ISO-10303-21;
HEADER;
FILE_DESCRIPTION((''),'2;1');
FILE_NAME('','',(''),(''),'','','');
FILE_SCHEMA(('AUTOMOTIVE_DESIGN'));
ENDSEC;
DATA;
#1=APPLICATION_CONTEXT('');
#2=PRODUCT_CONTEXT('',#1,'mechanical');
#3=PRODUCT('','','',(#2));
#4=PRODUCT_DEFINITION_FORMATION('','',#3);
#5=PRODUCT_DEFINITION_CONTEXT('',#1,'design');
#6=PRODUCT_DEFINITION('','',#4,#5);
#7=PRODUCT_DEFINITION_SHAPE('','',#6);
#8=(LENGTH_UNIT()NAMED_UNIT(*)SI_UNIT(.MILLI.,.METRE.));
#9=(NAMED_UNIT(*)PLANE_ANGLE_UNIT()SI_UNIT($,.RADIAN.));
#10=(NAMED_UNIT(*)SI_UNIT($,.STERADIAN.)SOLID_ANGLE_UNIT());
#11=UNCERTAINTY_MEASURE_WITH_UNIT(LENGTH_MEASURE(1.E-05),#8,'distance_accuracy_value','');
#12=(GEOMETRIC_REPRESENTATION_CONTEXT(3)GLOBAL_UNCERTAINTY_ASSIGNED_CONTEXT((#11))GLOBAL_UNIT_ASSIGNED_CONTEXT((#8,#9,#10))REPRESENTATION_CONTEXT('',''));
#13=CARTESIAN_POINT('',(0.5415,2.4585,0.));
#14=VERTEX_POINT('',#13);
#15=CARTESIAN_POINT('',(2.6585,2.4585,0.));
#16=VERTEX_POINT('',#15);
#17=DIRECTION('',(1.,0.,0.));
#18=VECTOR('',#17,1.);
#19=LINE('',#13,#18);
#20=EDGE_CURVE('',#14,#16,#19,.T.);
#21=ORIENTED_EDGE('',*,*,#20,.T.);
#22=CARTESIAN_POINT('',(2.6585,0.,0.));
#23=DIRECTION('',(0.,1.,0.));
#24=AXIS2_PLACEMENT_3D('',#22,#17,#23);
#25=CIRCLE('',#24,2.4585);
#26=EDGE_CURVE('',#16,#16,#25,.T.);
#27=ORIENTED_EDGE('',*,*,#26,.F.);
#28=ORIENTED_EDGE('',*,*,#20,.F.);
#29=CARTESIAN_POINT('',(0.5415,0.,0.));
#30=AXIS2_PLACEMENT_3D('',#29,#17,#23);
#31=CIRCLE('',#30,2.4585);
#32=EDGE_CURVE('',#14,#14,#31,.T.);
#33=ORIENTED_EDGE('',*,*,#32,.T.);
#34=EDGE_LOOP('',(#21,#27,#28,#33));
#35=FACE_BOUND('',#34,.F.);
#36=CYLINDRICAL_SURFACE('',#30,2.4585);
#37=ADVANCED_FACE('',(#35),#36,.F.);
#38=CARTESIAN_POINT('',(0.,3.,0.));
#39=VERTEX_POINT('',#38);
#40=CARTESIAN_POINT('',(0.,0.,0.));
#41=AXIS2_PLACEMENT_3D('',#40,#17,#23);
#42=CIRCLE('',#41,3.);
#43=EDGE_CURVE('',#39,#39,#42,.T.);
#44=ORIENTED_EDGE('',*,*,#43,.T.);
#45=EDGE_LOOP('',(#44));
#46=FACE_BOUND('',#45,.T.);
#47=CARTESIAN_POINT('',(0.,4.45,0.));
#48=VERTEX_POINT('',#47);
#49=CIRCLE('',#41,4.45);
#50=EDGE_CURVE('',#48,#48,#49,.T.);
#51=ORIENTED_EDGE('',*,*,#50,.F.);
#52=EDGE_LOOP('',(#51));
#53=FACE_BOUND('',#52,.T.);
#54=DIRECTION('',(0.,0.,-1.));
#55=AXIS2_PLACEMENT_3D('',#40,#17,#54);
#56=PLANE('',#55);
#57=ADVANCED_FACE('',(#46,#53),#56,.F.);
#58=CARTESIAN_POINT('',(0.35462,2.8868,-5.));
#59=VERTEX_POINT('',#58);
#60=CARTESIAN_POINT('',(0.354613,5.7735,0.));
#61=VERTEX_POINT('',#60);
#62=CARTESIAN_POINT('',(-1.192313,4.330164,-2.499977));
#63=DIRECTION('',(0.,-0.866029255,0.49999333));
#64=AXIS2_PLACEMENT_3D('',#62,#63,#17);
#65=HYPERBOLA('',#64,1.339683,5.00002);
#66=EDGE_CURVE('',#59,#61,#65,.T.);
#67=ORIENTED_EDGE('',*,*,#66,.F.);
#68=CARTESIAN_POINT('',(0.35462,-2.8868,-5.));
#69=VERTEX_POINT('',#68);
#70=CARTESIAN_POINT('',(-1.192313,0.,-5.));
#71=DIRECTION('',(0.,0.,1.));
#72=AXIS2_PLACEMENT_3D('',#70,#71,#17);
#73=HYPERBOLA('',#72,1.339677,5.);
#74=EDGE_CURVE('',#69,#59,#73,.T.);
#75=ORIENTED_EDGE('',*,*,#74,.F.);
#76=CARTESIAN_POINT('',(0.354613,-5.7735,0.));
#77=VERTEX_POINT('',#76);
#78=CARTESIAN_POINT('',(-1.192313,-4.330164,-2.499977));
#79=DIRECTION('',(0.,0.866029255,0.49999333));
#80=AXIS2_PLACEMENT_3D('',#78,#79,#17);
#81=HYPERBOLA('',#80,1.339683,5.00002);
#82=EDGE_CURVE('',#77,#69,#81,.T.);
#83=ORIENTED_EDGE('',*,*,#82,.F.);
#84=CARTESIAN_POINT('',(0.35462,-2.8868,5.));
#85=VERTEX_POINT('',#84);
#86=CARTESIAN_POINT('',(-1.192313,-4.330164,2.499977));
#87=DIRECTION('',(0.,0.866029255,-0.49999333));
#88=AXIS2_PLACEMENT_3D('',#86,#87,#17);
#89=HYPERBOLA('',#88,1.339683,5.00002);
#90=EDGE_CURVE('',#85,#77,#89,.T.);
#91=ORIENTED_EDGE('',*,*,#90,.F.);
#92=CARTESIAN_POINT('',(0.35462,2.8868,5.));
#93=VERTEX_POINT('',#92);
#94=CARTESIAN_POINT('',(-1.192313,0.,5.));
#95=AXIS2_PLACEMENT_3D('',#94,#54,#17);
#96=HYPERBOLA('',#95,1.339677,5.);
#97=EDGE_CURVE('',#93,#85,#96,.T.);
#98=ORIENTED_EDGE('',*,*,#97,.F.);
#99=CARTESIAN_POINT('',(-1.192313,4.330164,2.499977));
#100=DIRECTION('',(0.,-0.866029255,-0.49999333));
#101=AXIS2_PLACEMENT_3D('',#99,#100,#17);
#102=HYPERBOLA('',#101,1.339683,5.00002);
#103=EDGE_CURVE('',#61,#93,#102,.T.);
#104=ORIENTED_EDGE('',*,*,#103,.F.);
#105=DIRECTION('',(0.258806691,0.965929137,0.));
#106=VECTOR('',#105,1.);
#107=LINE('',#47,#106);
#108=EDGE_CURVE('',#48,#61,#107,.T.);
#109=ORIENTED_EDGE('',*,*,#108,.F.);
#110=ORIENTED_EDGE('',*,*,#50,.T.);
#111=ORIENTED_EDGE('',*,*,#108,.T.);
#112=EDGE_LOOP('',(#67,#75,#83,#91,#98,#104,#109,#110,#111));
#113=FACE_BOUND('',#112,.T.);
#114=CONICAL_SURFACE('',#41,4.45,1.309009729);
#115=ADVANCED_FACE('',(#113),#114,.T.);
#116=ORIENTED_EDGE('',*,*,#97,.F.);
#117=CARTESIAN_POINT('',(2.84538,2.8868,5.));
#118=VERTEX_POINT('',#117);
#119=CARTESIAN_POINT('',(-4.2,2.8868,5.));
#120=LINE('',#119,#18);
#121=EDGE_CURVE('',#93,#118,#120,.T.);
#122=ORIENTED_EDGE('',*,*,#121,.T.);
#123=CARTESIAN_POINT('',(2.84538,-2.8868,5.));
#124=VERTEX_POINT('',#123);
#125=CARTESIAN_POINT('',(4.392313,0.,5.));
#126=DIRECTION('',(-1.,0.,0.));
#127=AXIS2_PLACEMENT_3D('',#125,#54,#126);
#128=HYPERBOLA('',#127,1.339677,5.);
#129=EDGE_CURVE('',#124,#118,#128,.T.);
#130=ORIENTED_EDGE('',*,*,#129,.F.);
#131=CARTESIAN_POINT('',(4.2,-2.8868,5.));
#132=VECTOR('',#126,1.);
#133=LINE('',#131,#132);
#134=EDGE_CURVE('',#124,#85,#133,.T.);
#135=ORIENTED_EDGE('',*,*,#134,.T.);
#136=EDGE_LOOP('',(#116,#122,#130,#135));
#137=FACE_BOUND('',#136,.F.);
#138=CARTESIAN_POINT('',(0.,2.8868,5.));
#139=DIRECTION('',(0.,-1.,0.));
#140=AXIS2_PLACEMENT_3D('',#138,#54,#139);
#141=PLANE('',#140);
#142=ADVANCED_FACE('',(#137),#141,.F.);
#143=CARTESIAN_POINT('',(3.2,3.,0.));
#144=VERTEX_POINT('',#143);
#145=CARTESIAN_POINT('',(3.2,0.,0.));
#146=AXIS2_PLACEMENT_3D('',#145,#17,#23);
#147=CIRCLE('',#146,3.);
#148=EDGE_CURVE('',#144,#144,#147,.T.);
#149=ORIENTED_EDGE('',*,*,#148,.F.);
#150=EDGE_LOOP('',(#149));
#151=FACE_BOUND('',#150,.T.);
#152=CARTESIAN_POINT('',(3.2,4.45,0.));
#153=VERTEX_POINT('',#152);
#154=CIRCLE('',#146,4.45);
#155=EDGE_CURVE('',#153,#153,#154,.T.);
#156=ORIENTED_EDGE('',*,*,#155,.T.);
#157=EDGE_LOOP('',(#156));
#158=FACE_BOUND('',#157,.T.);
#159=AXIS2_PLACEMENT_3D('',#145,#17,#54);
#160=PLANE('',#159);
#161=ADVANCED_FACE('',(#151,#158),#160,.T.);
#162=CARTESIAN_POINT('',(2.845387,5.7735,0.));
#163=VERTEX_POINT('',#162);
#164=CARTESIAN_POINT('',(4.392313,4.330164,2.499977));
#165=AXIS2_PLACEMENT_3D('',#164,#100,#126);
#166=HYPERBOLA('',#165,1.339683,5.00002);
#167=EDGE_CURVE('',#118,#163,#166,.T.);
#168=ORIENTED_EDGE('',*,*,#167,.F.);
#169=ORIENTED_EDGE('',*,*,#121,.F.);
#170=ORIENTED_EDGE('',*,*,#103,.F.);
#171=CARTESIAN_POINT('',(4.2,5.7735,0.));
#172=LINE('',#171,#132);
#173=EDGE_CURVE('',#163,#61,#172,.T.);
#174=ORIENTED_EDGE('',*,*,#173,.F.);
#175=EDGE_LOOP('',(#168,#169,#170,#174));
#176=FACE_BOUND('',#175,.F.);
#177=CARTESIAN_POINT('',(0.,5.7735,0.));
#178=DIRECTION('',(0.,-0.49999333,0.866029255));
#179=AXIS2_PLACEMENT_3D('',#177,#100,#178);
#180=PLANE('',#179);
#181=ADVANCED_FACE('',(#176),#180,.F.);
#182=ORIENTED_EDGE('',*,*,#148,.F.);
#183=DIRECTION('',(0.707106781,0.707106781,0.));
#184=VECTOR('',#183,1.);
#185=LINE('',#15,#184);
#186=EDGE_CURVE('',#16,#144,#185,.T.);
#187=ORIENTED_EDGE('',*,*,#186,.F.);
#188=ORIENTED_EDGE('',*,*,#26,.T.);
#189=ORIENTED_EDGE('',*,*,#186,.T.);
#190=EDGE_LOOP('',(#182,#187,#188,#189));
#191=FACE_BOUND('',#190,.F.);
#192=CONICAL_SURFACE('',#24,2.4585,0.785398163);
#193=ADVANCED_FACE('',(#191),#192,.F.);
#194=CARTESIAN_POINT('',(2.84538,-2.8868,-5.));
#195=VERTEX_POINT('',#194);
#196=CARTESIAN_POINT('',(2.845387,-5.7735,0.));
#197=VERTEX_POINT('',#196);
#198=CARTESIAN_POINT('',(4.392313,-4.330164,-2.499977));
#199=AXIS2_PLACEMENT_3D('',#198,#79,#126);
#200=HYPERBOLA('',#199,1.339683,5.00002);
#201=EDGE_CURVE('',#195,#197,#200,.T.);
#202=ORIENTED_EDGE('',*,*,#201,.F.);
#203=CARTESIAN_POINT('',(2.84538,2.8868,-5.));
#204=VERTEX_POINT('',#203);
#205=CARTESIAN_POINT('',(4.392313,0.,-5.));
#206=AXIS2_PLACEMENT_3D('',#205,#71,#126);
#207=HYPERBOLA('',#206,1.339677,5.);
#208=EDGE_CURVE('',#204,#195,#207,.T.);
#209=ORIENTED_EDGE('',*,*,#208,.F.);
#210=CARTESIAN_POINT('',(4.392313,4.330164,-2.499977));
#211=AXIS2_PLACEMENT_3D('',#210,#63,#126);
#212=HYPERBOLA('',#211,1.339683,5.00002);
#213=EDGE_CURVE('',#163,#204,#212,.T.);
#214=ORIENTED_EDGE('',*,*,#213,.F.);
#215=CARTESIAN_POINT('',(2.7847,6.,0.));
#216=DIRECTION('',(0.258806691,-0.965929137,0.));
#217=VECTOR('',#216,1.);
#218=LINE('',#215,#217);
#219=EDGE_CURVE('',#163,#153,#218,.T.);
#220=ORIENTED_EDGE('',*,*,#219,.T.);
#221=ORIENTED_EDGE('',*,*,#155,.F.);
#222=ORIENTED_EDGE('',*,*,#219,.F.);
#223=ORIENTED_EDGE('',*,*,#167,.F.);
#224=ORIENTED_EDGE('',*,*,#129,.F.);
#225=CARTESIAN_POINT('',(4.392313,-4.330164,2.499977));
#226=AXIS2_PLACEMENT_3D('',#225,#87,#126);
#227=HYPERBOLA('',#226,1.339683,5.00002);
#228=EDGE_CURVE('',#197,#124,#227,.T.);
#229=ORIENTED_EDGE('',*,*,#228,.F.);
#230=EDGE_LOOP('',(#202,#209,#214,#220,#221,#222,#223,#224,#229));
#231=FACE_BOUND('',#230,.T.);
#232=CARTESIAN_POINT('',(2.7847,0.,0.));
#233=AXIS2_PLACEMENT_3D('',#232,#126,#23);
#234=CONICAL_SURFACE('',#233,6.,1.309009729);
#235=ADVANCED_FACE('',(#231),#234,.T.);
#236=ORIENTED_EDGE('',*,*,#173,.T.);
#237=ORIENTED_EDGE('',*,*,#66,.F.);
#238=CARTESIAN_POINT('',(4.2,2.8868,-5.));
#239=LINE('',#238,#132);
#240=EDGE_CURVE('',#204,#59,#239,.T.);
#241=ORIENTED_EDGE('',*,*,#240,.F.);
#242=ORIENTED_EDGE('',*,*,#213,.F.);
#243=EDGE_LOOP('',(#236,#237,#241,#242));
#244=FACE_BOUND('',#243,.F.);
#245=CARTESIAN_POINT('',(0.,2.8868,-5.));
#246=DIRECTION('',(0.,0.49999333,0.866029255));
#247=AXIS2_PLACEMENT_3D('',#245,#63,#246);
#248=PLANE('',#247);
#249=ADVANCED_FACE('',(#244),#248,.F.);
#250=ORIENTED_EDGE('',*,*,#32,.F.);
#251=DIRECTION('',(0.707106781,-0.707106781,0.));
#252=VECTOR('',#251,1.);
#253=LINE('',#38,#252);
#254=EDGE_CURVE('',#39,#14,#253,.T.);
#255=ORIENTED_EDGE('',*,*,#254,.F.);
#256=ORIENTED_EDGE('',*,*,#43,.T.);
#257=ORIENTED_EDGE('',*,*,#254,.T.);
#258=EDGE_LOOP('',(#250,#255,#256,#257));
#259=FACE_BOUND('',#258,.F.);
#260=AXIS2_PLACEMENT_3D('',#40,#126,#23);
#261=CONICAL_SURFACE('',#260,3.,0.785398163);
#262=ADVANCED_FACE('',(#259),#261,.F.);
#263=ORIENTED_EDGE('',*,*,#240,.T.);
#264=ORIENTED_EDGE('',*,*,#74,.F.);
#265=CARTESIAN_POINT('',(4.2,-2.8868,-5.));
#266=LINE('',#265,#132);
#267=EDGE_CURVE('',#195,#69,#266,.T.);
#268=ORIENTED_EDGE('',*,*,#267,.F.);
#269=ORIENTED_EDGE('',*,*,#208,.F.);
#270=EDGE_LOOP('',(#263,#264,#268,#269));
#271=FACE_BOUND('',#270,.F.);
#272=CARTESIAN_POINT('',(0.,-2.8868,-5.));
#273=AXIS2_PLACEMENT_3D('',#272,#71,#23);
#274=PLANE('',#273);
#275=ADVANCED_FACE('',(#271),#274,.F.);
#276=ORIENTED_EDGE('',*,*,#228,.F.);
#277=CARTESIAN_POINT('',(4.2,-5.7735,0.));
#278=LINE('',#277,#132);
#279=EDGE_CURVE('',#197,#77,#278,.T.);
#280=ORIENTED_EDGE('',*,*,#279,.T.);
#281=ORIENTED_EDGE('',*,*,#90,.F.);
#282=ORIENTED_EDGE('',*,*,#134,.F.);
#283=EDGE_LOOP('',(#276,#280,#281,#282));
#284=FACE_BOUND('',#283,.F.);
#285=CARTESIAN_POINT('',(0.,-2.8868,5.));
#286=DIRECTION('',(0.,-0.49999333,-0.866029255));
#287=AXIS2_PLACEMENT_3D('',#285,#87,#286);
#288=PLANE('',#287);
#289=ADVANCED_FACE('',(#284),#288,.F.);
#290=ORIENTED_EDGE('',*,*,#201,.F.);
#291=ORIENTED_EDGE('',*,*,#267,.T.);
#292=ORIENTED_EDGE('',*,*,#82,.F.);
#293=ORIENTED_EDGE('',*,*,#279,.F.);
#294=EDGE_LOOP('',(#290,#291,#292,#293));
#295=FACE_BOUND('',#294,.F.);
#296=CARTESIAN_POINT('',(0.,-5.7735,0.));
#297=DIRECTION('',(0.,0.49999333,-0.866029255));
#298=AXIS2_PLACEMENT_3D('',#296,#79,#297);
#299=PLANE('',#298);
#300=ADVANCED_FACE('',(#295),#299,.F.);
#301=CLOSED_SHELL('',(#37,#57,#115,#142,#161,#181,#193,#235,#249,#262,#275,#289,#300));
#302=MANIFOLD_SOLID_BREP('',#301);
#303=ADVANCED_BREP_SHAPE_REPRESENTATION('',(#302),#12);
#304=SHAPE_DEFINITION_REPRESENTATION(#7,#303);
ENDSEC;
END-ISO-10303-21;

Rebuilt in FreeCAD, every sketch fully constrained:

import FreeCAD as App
import Part
import Sketcher

V = App.Vector
Q = App.Units.Quantity

doc = App.newDocument("Part")
body = doc.addObject("PartDesign::Body", "Body")

# Sketch on XZ plane
sketch1 = body.newObject("Sketcher::SketchObject", "Sketch")
sketch1.AttachmentSupport = (doc.getObject("XZ_Plane"), [""])
sketch1.MapMode = "FlatFace"
sketch1.addGeometry(Part.LineSegment(V(0, 0, 0), V(3.2, 0, 0)), False)
sketch1.addGeometry(Part.LineSegment(V(3.2, 0, 0), V(3.2, -6, 0)), False)
sketch1.addGeometry(Part.LineSegment(V(3.2, -6, 0), V(0, -6, 0)), False)
sketch1.addGeometry(Part.LineSegment(V(0, -6, 0), V(0, 0, 0)), False)
sketch1.addConstraint(Sketcher.Constraint("Coincident", 0, 2, 1, 1))
sketch1.addConstraint(Sketcher.Constraint("Coincident", 1, 2, 2, 1))
sketch1.addConstraint(Sketcher.Constraint("Coincident", 2, 2, 3, 1))
sketch1.addConstraint(Sketcher.Constraint("Coincident", 3, 2, 0, 1))
sketch1.addConstraint(Sketcher.Constraint("Horizontal", 0))
sketch1.addConstraint(Sketcher.Constraint("Vertical", 1))
sketch1.addConstraint(Sketcher.Constraint("Horizontal", 2))
sketch1.addConstraint(Sketcher.Constraint("Vertical", 3))
sketch1.addConstraint(Sketcher.Constraint("Coincident", 3, 2, -1, 1))
sketch1.addConstraint(Sketcher.Constraint("DistanceY", 1, 2, 1, 1, 6.0))
sketch1.addConstraint(Sketcher.Constraint("DistanceX", 0, 1, 0, 2, 3.2))
revolution = body.newObject("PartDesign::Revolution", "Revolution")
revolution.Profile = sketch1
revolution.ReferenceAxis = (sketch1, ["H_Axis"])
revolution.Angle = 360

# Sketch on XY plane
sketch2 = body.newObject("Sketcher::SketchObject", "Sketch001")
sketch2.AttachmentSupport = (doc.getObject("XY_Plane"), [""])
sketch2.MapMode = "FlatFace"
sketch2.addGeometry(Part.LineSegment(V(7.7, 10, 0), V(-4.5, 10, 0)), False)
sketch2.addGeometry(Part.LineSegment(V(-4.5, 10, 0), V(-4.5, 4.5, 0)), False)
sketch2.addGeometry(Part.LineSegment(V(-4.5, 4.5, 0), V(0, 4.5, 0)), False)
sketch2.addGeometry(Part.LineSegment(V(0, 4.5, 0), V(0.4, 6, 0)), False)
sketch2.addGeometry(Part.LineSegment(V(0.4, 6, 0), V(2.8, 6, 0)), False)
sketch2.addGeometry(Part.LineSegment(V(2.8, 6, 0), V(3.2, 4.5, 0)), False)
sketch2.addGeometry(Part.LineSegment(V(3.2, 4.5, 0), V(7.7, 4.5, 0)), False)
sketch2.addGeometry(Part.LineSegment(V(7.7, 4.5, 0), V(7.7, 10, 0)), False)
sketch2.addConstraint(Sketcher.Constraint("Coincident", 0, 2, 1, 1))
sketch2.addConstraint(Sketcher.Constraint("Coincident", 1, 2, 2, 1))
sketch2.addConstraint(Sketcher.Constraint("Coincident", 2, 2, 3, 1))
sketch2.addConstraint(Sketcher.Constraint("Coincident", 3, 2, 4, 1))
sketch2.addConstraint(Sketcher.Constraint("Coincident", 4, 2, 5, 1))
sketch2.addConstraint(Sketcher.Constraint("Coincident", 5, 2, 6, 1))
sketch2.addConstraint(Sketcher.Constraint("Coincident", 6, 2, 7, 1))
sketch2.addConstraint(Sketcher.Constraint("Coincident", 7, 2, 0, 1))
sketch2.addConstraint(Sketcher.Constraint("Horizontal", 0))
sketch2.addConstraint(Sketcher.Constraint("Vertical", 1))
sketch2.addConstraint(Sketcher.Constraint("Horizontal", 2))
sketch2.addConstraint(Sketcher.Constraint("Horizontal", 4))
sketch2.addConstraint(Sketcher.Constraint("Horizontal", 6))
sketch2.addConstraint(Sketcher.Constraint("Vertical", 7))
sketch2.addConstraint(Sketcher.Constraint("PointOnObject", 2, 2, -2))
sketch2.addConstraint(Sketcher.Constraint("Horizontal", 2, 2, 5, 2))
sketch2.addConstraint(Sketcher.Constraint("Equal", 2, 6))
sketch2.addConstraint(Sketcher.Constraint("Equal", 3, 5))
sketch2.addConstraint(Sketcher.Constraint("Angle", 3, Q("75.0007 deg")))
sketch2.addConstraint(Sketcher.Constraint("DistanceX", 0, 2, 0, 1, 12.1))
sketch2.addConstraint(Sketcher.Constraint("DistanceY", -1, 1, 0, 2, 10.0))
sketch2.addConstraint(Sketcher.Constraint("DistanceY", -1, 1, 3, 2, 6.0))
sketch2.addConstraint(Sketcher.Constraint("DistanceX", 2, 1, 2, 2, 4.45))
sketch2.addConstraint(Sketcher.Constraint("DistanceY", 1, 2, 1, 1, 5.55))
groove = body.newObject("PartDesign::Groove", "Groove")
groove.Profile = sketch2
groove.ReferenceAxis = (sketch2, ["H_Axis"])
groove.Angle = 360

# Sketch on XY plane
sketch3 = body.newObject("Sketcher::SketchObject", "Sketch002")
sketch3.AttachmentSupport = (doc.getObject("XY_Plane"), [""])
sketch3.MapMode = "FlatFace"
sketch3.addGeometry(Part.LineSegment(V(0, 0, 0), V(3.2, 0, 0)), False)
sketch3.addGeometry(Part.LineSegment(V(3.2, 0, 0), V(3.2, 3, 0)), False)
sketch3.addGeometry(Part.LineSegment(V(3.2, 3, 0), V(2.7, 2.5, 0)), False)
sketch3.addGeometry(Part.LineSegment(V(2.7, 2.5, 0), V(0.5, 2.5, 0)), False)
sketch3.addGeometry(Part.LineSegment(V(0.5, 2.5, 0), V(0, 3, 0)), False)
sketch3.addGeometry(Part.LineSegment(V(0, 3, 0), V(0, 0, 0)), False)
sketch3.addConstraint(Sketcher.Constraint("Coincident", 0, 2, 1, 1))
sketch3.addConstraint(Sketcher.Constraint("Coincident", 1, 2, 2, 1))
sketch3.addConstraint(Sketcher.Constraint("Coincident", 2, 2, 3, 1))
sketch3.addConstraint(Sketcher.Constraint("Coincident", 3, 2, 4, 1))
sketch3.addConstraint(Sketcher.Constraint("Coincident", 4, 2, 5, 1))
sketch3.addConstraint(Sketcher.Constraint("Coincident", 5, 2, 0, 1))
sketch3.addConstraint(Sketcher.Constraint("Horizontal", 0))
sketch3.addConstraint(Sketcher.Constraint("Vertical", 1))
sketch3.addConstraint(Sketcher.Constraint("Horizontal", 3))
sketch3.addConstraint(Sketcher.Constraint("Vertical", 5))
sketch3.addConstraint(Sketcher.Constraint("Coincident", 5, 2, -1, 1))
sketch3.addConstraint(Sketcher.Constraint("Perpendicular", 2, 4))
sketch3.addConstraint(Sketcher.Constraint("Horizontal", 1, 2, 4, 2))
sketch3.addConstraint(Sketcher.Constraint("Equal", 2, 4))
sketch3.addConstraint(Sketcher.Constraint("DistanceY", 1, 1, 1, 2, 3.0))
sketch3.addConstraint(Sketcher.Constraint("DistanceX", 0, 1, 0, 2, 3.2))
sketch3.addConstraint(Sketcher.Constraint("DistanceX", 3, 2, 3, 1, 2.117))
groove2 = body.newObject("PartDesign::Groove", "Groove001")
groove2.Profile = sketch3
groove2.ReferenceAxis = (sketch3, ["H_Axis"])
groove2.Angle = 360

# Sketch on YZ plane
sketch4 = body.newObject("Sketcher::SketchObject", "Sketch003")
sketch4.AttachmentSupport = (doc.getObject("YZ_Plane"), [""])
sketch4.MapMode = "FlatFace"
sketch4.addGeometry(Part.LineSegment(V(20, -20, 0), V(20, 20, 0)), False)
sketch4.addGeometry(Part.LineSegment(V(20, 20, 0), V(-20, 20, 0)), False)
sketch4.addGeometry(Part.LineSegment(V(-20, 20, 0), V(-20, -20, 0)), False)
sketch4.addGeometry(Part.LineSegment(V(-20, -20, 0), V(20, -20, 0)), False)
sketch4.addGeometry(Part.LineSegment(V(-3, 5, 0), V(3, 5, 0)), False)
sketch4.addGeometry(Part.LineSegment(V(3, 5, 0), V(6, 0, 0)), False)
sketch4.addGeometry(Part.LineSegment(V(6, 0, 0), V(3, -5, 0)), False)
sketch4.addGeometry(Part.LineSegment(V(3, -5, 0), V(-3, -5, 0)), False)
sketch4.addGeometry(Part.LineSegment(V(-3, -5, 0), V(-6, 0, 0)), False)
sketch4.addGeometry(Part.LineSegment(V(-6, 0, 0), V(-3, 5, 0)), False)
sketch4.addConstraint(Sketcher.Constraint("Coincident", 0, 2, 1, 1))
sketch4.addConstraint(Sketcher.Constraint("Coincident", 1, 2, 2, 1))
sketch4.addConstraint(Sketcher.Constraint("Coincident", 2, 2, 3, 1))
sketch4.addConstraint(Sketcher.Constraint("Coincident", 3, 2, 0, 1))
sketch4.addConstraint(Sketcher.Constraint("Coincident", 4, 2, 5, 1))
sketch4.addConstraint(Sketcher.Constraint("Coincident", 5, 2, 6, 1))
sketch4.addConstraint(Sketcher.Constraint("Coincident", 6, 2, 7, 1))
sketch4.addConstraint(Sketcher.Constraint("Coincident", 7, 2, 8, 1))
sketch4.addConstraint(Sketcher.Constraint("Coincident", 8, 2, 9, 1))
sketch4.addConstraint(Sketcher.Constraint("Coincident", 9, 2, 4, 1))
sketch4.addConstraint(Sketcher.Constraint("Vertical", 0))
sketch4.addConstraint(Sketcher.Constraint("Horizontal", 1))
sketch4.addConstraint(Sketcher.Constraint("Vertical", 2))
sketch4.addConstraint(Sketcher.Constraint("Horizontal", 3))
sketch4.addConstraint(Sketcher.Constraint("Horizontal", 4))
sketch4.addConstraint(Sketcher.Constraint("Horizontal", 7))
sketch4.addConstraint(Sketcher.Constraint("Symmetric", 0, 2, 2, 2, -1, 1))
sketch4.addConstraint(Sketcher.Constraint("Symmetric", 4, 2, 7, 2, -1, 1))
sketch4.addConstraint(Sketcher.Constraint("Symmetric", 5, 2, 8, 2, -1, 1))
sketch4.addConstraint(Sketcher.Constraint("PointOnObject", 5, 2, -1))
sketch4.addConstraint(Sketcher.Constraint("Parallel", 6, 9))
sketch4.addConstraint(Sketcher.Constraint("Vertical", 4, 2, 6, 2))
sketch4.addConstraint(Sketcher.Constraint("Equal", 3, 0))
sketch4.addConstraint(Sketcher.Constraint("DistanceX", 1, 2, 1, 1, 40.0))
sketch4.addConstraint(Sketcher.Constraint("Angle", 5, Q("-60.0004 deg")))
sketch4.addConstraint(Sketcher.Constraint("DistanceY", -1, 1, 4, 2, 5.0))
sketch4.addConstraint(Sketcher.Constraint("DistanceX", 4, 1, 4, 2, 5.7736))
pocket1 = body.newObject("PartDesign::Pocket", "Pocket")
pocket1.Profile = sketch4
pocket1.Length = 8.4
pocket1.Midplane = True

doc.recompute()
